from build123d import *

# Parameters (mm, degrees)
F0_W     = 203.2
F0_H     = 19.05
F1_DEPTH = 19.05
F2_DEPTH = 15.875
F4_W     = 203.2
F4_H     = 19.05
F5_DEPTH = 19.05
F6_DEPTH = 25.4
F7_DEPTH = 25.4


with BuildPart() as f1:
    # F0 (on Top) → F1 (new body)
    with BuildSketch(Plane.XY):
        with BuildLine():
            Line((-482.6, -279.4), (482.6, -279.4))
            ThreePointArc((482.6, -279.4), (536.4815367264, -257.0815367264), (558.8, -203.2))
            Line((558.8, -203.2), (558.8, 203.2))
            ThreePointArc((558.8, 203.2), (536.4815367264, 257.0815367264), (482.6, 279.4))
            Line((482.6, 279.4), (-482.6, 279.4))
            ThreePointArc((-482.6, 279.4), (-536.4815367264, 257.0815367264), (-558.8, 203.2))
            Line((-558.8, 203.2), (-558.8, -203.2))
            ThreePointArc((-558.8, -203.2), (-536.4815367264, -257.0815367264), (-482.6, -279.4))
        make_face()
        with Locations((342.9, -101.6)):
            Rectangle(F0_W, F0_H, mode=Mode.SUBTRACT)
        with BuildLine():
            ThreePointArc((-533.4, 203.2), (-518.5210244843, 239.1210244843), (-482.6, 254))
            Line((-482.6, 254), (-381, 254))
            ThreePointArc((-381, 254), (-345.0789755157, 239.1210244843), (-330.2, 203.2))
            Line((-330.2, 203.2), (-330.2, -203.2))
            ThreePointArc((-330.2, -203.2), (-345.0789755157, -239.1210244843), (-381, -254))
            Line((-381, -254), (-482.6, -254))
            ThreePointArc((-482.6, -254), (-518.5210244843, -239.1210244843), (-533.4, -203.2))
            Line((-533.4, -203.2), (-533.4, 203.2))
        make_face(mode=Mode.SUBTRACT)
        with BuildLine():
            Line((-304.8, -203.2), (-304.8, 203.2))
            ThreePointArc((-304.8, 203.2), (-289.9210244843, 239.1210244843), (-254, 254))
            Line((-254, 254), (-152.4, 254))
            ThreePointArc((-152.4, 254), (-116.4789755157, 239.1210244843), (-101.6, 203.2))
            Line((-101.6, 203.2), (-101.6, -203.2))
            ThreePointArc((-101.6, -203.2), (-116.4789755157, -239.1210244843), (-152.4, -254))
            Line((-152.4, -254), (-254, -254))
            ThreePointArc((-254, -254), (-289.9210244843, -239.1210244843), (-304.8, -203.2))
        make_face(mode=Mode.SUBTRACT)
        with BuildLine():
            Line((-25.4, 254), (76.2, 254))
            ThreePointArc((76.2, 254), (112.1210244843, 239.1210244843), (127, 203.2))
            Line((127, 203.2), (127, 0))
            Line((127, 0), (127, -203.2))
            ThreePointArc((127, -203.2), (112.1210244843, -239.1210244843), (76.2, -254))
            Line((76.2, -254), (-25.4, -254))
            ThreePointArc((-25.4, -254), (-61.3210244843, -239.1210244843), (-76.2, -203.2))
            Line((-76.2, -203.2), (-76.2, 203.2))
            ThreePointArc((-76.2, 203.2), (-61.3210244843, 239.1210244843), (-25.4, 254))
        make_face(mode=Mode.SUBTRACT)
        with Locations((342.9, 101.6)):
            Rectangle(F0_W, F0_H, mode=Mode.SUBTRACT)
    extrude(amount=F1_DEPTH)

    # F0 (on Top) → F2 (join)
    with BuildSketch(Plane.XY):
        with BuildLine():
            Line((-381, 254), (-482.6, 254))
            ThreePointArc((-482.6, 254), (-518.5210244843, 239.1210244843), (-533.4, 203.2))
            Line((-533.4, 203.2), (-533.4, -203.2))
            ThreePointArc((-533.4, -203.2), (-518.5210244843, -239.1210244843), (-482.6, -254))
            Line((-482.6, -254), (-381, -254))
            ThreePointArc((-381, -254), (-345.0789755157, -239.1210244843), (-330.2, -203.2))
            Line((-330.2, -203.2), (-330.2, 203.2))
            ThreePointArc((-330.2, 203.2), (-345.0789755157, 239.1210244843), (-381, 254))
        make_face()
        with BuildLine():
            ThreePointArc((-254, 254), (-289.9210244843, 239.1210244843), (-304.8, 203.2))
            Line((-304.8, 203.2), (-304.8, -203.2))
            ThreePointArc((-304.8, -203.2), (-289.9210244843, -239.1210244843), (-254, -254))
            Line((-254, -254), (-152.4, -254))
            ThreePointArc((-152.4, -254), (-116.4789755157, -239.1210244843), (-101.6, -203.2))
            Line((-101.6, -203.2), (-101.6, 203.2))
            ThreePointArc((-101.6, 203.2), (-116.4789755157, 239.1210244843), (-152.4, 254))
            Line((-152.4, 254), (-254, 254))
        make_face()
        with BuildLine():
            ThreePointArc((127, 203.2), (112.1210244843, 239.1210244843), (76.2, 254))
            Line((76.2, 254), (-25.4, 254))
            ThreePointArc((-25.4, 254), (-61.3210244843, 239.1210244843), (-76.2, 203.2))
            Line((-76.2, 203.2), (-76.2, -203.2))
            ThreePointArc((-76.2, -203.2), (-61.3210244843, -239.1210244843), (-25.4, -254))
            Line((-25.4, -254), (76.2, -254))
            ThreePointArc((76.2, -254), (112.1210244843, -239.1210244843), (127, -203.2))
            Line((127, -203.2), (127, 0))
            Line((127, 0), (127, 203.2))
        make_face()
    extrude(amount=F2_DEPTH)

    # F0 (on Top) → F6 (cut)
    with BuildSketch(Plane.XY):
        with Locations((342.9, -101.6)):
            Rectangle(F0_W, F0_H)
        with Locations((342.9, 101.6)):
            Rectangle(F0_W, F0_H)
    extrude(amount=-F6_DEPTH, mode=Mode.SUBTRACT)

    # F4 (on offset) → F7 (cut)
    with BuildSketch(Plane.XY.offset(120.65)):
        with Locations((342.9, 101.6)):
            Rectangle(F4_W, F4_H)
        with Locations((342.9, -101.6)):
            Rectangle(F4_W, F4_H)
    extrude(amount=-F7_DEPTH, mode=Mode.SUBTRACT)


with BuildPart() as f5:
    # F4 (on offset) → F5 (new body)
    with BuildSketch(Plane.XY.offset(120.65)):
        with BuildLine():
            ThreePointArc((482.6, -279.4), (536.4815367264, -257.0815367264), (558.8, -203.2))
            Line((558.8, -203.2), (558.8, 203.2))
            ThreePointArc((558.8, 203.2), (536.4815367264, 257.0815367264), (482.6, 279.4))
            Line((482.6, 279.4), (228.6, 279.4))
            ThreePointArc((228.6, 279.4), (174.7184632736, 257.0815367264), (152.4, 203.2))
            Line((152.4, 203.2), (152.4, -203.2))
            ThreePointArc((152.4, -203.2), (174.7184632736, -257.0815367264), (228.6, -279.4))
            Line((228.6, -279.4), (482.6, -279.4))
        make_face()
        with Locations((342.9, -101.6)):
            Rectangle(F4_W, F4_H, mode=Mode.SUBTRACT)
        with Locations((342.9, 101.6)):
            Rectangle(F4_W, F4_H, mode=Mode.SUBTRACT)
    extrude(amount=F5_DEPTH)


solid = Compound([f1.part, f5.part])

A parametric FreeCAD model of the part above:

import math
import FreeCAD as App
import Part
import Sketcher

V = App.Vector
Q = App.Units.Quantity


def add_polygon(sketch, points):
    """Adds a closed chain of lines whose ends are joined by coincident constraints."""
    first, n = sketch.GeometryCount, len(points)
    for a, b in zip(points, points[1:] + points[:1]):
        sketch.addGeometry(Part.LineSegment(App.Vector(*a, 0), App.Vector(*b, 0)), False)
    for i in range(n):
        sketch.addConstraint(Sketcher.Constraint("Coincident", first + i, 2, first + (i + 1) % n, 1))

doc = App.newDocument("Part")
params = doc.addObject("Spreadsheet::Sheet", "Params")
for row, (alias, value) in enumerate([
    ("sketch1_radius", "3 in"),
    ("sketch1_radius2", "2 in"),
    ("sketch1_width", "38 in"),
    ("sketch1_width2", "8 in"),
    ("sketch1_width3", "4 in"),
    ("pad1_length", "0.75 in"),
    ("sketch2_radius", "2 in"),
    ("sketch2_width", "4 in"),
    ("sketch2_height", "16 in"),
    ("pad2_length", "0.625 in"),
    ("sketch3_width", "8 in"),
    ("sketch3_height", "0.75 in"),
    ("pocket1_length", "1 in"),
    ("sketch4_width", "8 in"),
    ("sketch4_height", "0.75 in"),
    ("pocket2_length", "1 in"),
    ("sketch5_radius", "3 in"),
    ("sketch5_width", "10 in"),
    ("sketch5_width2", "8 in"),
    ("sketch5_height", "16 in"),
    ("sketch5_height2", "0.75 in"),
    ("pad3_length", "0.75 in"),
], start=1):
    params.set(f"A{row}", alias)
    params.set(f"B{row}", "=" + value)
    params.setAlias(f"B{row}", alias)

body = doc.addObject("PartDesign::Body", "Body")

sketch1 = body.newObject("Sketcher::SketchObject", "Sketch")
sketch1.AttachmentSupport = (doc.getObject("XY_Plane"), [""])
sketch1.MapMode = "FlatFace"
sketch1.addGeometry(Part.LineSegment(V(-482.6, -279.4, 0), V(482.6, -279.4, 0)), False)
sketch1.addGeometry(Part.ArcOfCircle(Part.Circle(V(482.6, -203.2, 0), V(0, 0, 1), 76.2), math.radians(-90), math.radians(0)), False)
sketch1.addGeometry(Part.LineSegment(V(558.8, -203.2, 0), V(558.8, 203.2, 0)), False)
sketch1.addGeometry(Part.ArcOfCircle(Part.Circle(V(482.6, 203.2, 0), V(0, 0, 1), 76.2), math.radians(0), math.radians(90)), False)
sketch1.addGeometry(Part.LineSegment(V(482.6, 279.4, 0), V(-482.6, 279.4, 0)), False)
sketch1.addGeometry(Part.ArcOfCircle(Part.Circle(V(-482.6, 203.2, 0), V(0, 0, 1), 76.2), math.radians(90), math.radians(180)), False)
sketch1.addGeometry(Part.LineSegment(V(-558.8, 203.2, 0), V(-558.8, -203.2, 0)), False)
sketch1.addGeometry(Part.ArcOfCircle(Part.Circle(V(-482.6, -203.2, 0), V(0, 0, 1), 76.2), math.radians(180), math.radians(270)), False)
add_polygon(sketch1, [(444.5, -111.125), (241.3, -111.125), (241.3, -92.075), (444.5, -92.075)])
sketch1.addGeometry(Part.LineSegment(V(-533.4, -203.2, 0), V(-533.4, 203.2, 0)), False)
sketch1.addGeometry(Part.ArcOfCircle(Part.Circle(V(-482.6, 203.2, 0), V(0, 0, 1), 50.8), math.radians(90), math.radians(180)), False)
sketch1.addGeometry(Part.LineSegment(V(-482.6, 254, 0), V(-381, 254, 0)), False)
sketch1.addGeometry(Part.ArcOfCircle(Part.Circle(V(-381, 203.2, 0), V(0, 0, 1), 50.8), math.radians(0), math.radians(90)), False)
sketch1.addGeometry(Part.LineSegment(V(-330.2, 203.2, 0), V(-330.2, -203.2, 0)), False)
sketch1.addGeometry(Part.ArcOfCircle(Part.Circle(V(-381, -203.2, 0), V(0, 0, 1), 50.8), math.radians(-90), math.radians(0)), False)
sketch1.addGeometry(Part.LineSegment(V(-381, -254, 0), V(-482.6, -254, 0)), False)
sketch1.addGeometry(Part.ArcOfCircle(Part.Circle(V(-482.6, -203.2, 0), V(0, 0, 1), 50.8), math.radians(180), math.radians(270)), False)
sketch1.addGeometry(Part.ArcOfCircle(Part.Circle(V(-254, -203.2, 0), V(0, 0, 1), 50.8), math.radians(180), math.radians(270)), False)
sketch1.addGeometry(Part.LineSegment(V(-304.8, -203.2, 0), V(-304.8, 203.2, 0)), False)
sketch1.addGeometry(Part.ArcOfCircle(Part.Circle(V(-254, 203.2, 0), V(0, 0, 1), 50.8), math.radians(90), math.radians(180)), False)
sketch1.addGeometry(Part.LineSegment(V(-254, 254, 0), V(-152.4, 254, 0)), False)
sketch1.addGeometry(Part.ArcOfCircle(Part.Circle(V(-152.4, 203.2, 0), V(0, 0, 1), 50.8), math.radians(0), math.radians(90)), False)
sketch1.addGeometry(Part.LineSegment(V(-101.6, 203.2, 0), V(-101.6, -203.2, 0)), False)
sketch1.addGeometry(Part.ArcOfCircle(Part.Circle(V(-152.4, -203.2, 0), V(0, 0, 1), 50.8), math.radians(-90), math.radians(0)), False)
sketch1.addGeometry(Part.LineSegment(V(-152.4, -254, 0), V(-254, -254, 0)), False)
sketch1.addGeometry(Part.ArcOfCircle(Part.Circle(V(-25.4, 203.2, 0), V(0, 0, 1), 50.8), math.radians(90), math.radians(180)), False)
sketch1.addGeometry(Part.LineSegment(V(-25.4, 254, 0), V(76.2, 254, 0)), False)
sketch1.addGeometry(Part.ArcOfCircle(Part.Circle(V(76.2, 203.2, 0), V(0, 0, 1), 50.8), math.radians(0), math.radians(90)), False)
sketch1.addGeometry(Part.LineSegment(V(127, 203.2, 0), V(127, -203.2, 0)), False)
sketch1.addGeometry(Part.ArcOfCircle(Part.Circle(V(76.2, -203.2, 0), V(0, 0, 1), 50.8), math.radians(-90), math.radians(0)), False)
sketch1.addGeometry(Part.LineSegment(V(76.2, -254, 0), V(-25.4, -254, 0)), False)
sketch1.addGeometry(Part.ArcOfCircle(Part.Circle(V(-25.4, -203.2, 0), V(0, 0, 1), 50.8), math.radians(180), math.radians(270)), False)
sketch1.addGeometry(Part.LineSegment(V(-76.2, -203.2, 0), V(-76.2, 203.2, 0)), False)
add_polygon(sketch1, [(444.5, 92.075), (241.3, 92.075), (241.3, 111.125), (444.5, 111.125)])
sketch1.addConstraint([
    Sketcher.Constraint("Tangent", 0, 2, 1, 1),
    Sketcher.Constraint("Tangent", 1, 2, 2, 1),
    Sketcher.Constraint("Tangent", 2, 2, 3, 1),
    Sketcher.Constraint("Tangent", 3, 2, 4, 1),
    Sketcher.Constraint("Tangent", 4, 2, 5, 1),
    Sketcher.Constraint("Tangent", 5, 2, 6, 1),
    Sketcher.Constraint("Tangent", 6, 2, 7, 1),
    Sketcher.Constraint("Tangent", 7, 2, 0, 1),
    Sketcher.Constraint("Tangent", 12, 2, 13, 2),
    Sketcher.Constraint("Tangent", 13, 1, 14, 1),
    Sketcher.Constraint("Tangent", 14, 2, 15, 2),
    Sketcher.Constraint("Tangent", 15, 1, 16, 1),
    Sketcher.Constraint("Tangent", 16, 2, 17, 2),
    Sketcher.Constraint("Tangent", 17, 1, 18, 1),
    Sketcher.Constraint("Tangent", 18, 2, 19, 2),
    Sketcher.Constraint("Tangent", 19, 1, 12, 1),
    Sketcher.Constraint("Tangent", 20, 1, 21, 1),
    Sketcher.Constraint("Tangent", 21, 2, 22, 2),
    Sketcher.Constraint("Tangent", 22, 1, 23, 1),
    Sketcher.Constraint("Tangent", 23, 2, 24, 2),
    Sketcher.Constraint("Tangent", 24, 1, 25, 1),
    Sketcher.Constraint("Tangent", 25, 2, 26, 2),
    Sketcher.Constraint("Tangent", 26, 1, 27, 1),
    Sketcher.Constraint("Tangent", 27, 2, 20, 2),
    Sketcher.Constraint("Tangent", 28, 1, 29, 1),
    Sketcher.Constraint("Tangent", 29, 2, 30, 2),
    Sketcher.Constraint("Tangent", 30, 1, 31, 1),
    Sketcher.Constraint("Tangent", 31, 2, 32, 2),
    Sketcher.Constraint("Tangent", 32, 1, 33, 1),
    Sketcher.Constraint("Tangent", 33, 2, 34, 2),
    Sketcher.Constraint("Tangent", 34, 1, 35, 1),
    Sketcher.Constraint("Tangent", 35, 2, 28, 2),
    Sketcher.Constraint("Horizontal", 0),
    Sketcher.Constraint("Vertical", 2),
    Sketcher.Constraint("Horizontal", 4),
    Sketcher.Constraint("Vertical", 6),
    Sketcher.Constraint("Horizontal", 8),
    Sketcher.Constraint("Vertical", 9),
    Sketcher.Constraint("Horizontal", 10),
    Sketcher.Constraint("Vertical", 11),
    Sketcher.Constraint("Vertical", 12),
    Sketcher.Constraint("Horizontal", 14),
    Sketcher.Constraint("Vertical", 16),
    Sketcher.Constraint("Horizontal", 18),
    Sketcher.Constraint("Vertical", 21),
    Sketcher.Constraint("Horizontal", 23),
    Sketcher.Constraint("Vertical", 25),
    Sketcher.Constraint("Horizontal", 27),
    Sketcher.Constraint("Horizontal", 29),
    Sketcher.Constraint("Vertical", 31),
    Sketcher.Constraint("Horizontal", 33),
    Sketcher.Constraint("Vertical", 35),
    Sketcher.Constraint("Horizontal", 36),
    Sketcher.Constraint("Vertical", 37),
    Sketcher.Constraint("Horizontal", 38),
    Sketcher.Constraint("Vertical", 39),
    Sketcher.Constraint("Coincident", 13, 3, 5, 3),
    Sketcher.Constraint("Coincident", 19, 3, 7, 3),
    Sketcher.Constraint("Equal", 1, 3),
    Sketcher.Constraint("Equal", 3, 5),
    Sketcher.Constraint("Equal", 5, 7),
    Sketcher.Constraint("Equal", 13, 15),
    Sketcher.Constraint("Equal", 15, 17),
    Sketcher.Constraint("Equal", 19, 20),
    Sketcher.Constraint("Equal", 20, 22),
    Sketcher.Constraint("Equal", 22, 24),
    Sketcher.Constraint("Equal", 24, 26),
    Sketcher.Constraint("Equal", 26, 28),
    Sketcher.Constraint("Equal", 28, 30),
    Sketcher.Constraint("Equal", 30, 32),
    Sketcher.Constraint("Equal", 32, 34),
    Sketcher.Constraint("Symmetric", 1, 3, 5, 3, -1, 1),
    Sketcher.Constraint("Symmetric", 9, 2, 36, 2, -1),
    Sketcher.Constraint("Symmetric", 11, 2, 38, 2, -1),
    Sketcher.Constraint("Horizontal", 19, 3, 20, 3),
    Sketcher.Constraint("Horizontal", 15, 3, 22, 3),
    Sketcher.Constraint("Horizontal", 24, 3, 28, 3),
    Sketcher.Constraint("Horizontal", 26, 3, 32, 3),
    Sketcher.Constraint("Equal", 18, 23),
    Sketcher.Constraint("Equal", 27, 29),
    Sketcher.Constraint("Radius", 1, Q("3 in")),
    Sketcher.Constraint("Radius", 13, Q("2 in")),
    Sketcher.Constraint("DistanceX", 0, 1, 0, 2, Q("38 in")),
    Sketcher.Constraint("DistanceX", 8, 2, 8, 1, Q("8 in")),
    Sketcher.Constraint("DistanceX", 14, 1, 14, 2, Q("4 in")),
    Sketcher.Constraint("DistanceY", 2, 1, 2, 2, Q("16 in")),
    Sketcher.Constraint("DistanceX", 20, 3, -1, 1, Q("10 in")),
    Sketcher.Constraint("DistanceX", 28, 3, -1, 1, Q("1 in")),
    Sketcher.Constraint("DistanceY", 8, 2, 36, 2, Q("8 in")),
    Sketcher.Constraint("DistanceY", 9, 1, 9, 2, Q("0.75 in")),
    Sketcher.Constraint("DistanceX", -1, 1, 8, 2, Q("9.5 in")),
])
sketch1.setExpression("Constraints[88]", "Params.sketch1_radius")
sketch1.setExpression("Constraints[89]", "Params.sketch1_radius2")
sketch1.setExpression("Constraints[90]", "Params.sketch1_width")
sketch1.setExpression("Constraints[91]", "Params.sketch1_width2")
sketch1.setExpression("Constraints[92]", "Params.sketch1_width3")
pad1 = body.newObject("PartDesign::Pad", "Pad")
pad1.Profile = sketch1
pad1.setExpression("Length", "Params.pad1_length")

sketch2 = body.newObject("Sketcher::SketchObject", "Sketch001")
sketch2.AttachmentSupport = (doc.getObject("XY_Plane"), [""])
sketch2.MapMode = "FlatFace"
sketch2.addGeometry([
    Part.LineSegment(V(-381, 254, 0), V(-482.6, 254, 0)),
    Part.ArcOfCircle(Part.Circle(V(-482.6, 203.2, 0), V(0, 0, 1), 50.8), math.radians(90), math.radians(180)),
    Part.LineSegment(V(-533.4, 203.2, 0), V(-533.4, -203.2, 0)),
    Part.ArcOfCircle(Part.Circle(V(-482.6, -203.2, 0), V(0, 0, 1), 50.8), math.radians(180), math.radians(270)),
    Part.LineSegment(V(-482.6, -254, 0), V(-381, -254, 0)),
    Part.ArcOfCircle(Part.Circle(V(-381, -203.2, 0), V(0, 0, 1), 50.8), math.radians(-90), math.radians(0)),
    Part.LineSegment(V(-330.2, -203.2, 0), V(-330.2, 203.2, 0)),
    Part.ArcOfCircle(Part.Circle(V(-381, 203.2, 0), V(0, 0, 1), 50.8), math.radians(0), math.radians(90)),
    Part.ArcOfCircle(Part.Circle(V(-254, 203.2, 0), V(0, 0, 1), 50.8), math.radians(90), math.radians(180)),
    Part.LineSegment(V(-304.8, 203.2, 0), V(-304.8, -203.2, 0)),
    Part.ArcOfCircle(Part.Circle(V(-254, -203.2, 0), V(0, 0, 1), 50.8), math.radians(180), math.radians(270)),
    Part.LineSegment(V(-254, -254, 0), V(-152.4, -254, 0)),
    Part.ArcOfCircle(Part.Circle(V(-152.4, -203.2, 0), V(0, 0, 1), 50.8), math.radians(-90), math.radians(0)),
    Part.LineSegment(V(-101.6, -203.2, 0), V(-101.6, 203.2, 0)),
    Part.ArcOfCircle(Part.Circle(V(-152.4, 203.2, 0), V(0, 0, 1), 50.8), math.radians(0), math.radians(90)),
    Part.LineSegment(V(-152.4, 254, 0), V(-254, 254, 0)),
    Part.ArcOfCircle(Part.Circle(V(76.2, 203.2, 0), V(0, 0, 1), 50.8), math.radians(0), math.radians(90)),
    Part.LineSegment(V(76.2, 254, 0), V(-25.4, 254, 0)),
    Part.ArcOfCircle(Part.Circle(V(-25.4, 203.2, 0), V(0, 0, 1), 50.8), math.radians(90), math.radians(180)),
    Part.LineSegment(V(-76.2, 203.2, 0), V(-76.2, -203.2, 0)),
    Part.ArcOfCircle(Part.Circle(V(-25.4, -203.2, 0), V(0, 0, 1), 50.8), math.radians(180), math.radians(270)),
    Part.LineSegment(V(-25.4, -254, 0), V(76.2, -254, 0)),
    Part.ArcOfCircle(Part.Circle(V(76.2, -203.2, 0), V(0, 0, 1), 50.8), math.radians(-90), math.radians(0)),
    Part.LineSegment(V(127, -203.2, 0), V(127, 203.2, 0)),
], False)
sketch2.addConstraint([
    Sketcher.Constraint("Tangent", 0, 2, 1, 1),
    Sketcher.Constraint("Tangent", 1, 2, 2, 1),
    Sketcher.Constraint("Tangent", 2, 2, 3, 1),
    Sketcher.Constraint("Tangent", 3, 2, 4, 1),
    Sketcher.Constraint("Tangent", 4, 2, 5, 1),
    Sketcher.Constraint("Tangent", 5, 2, 6, 1),
    Sketcher.Constraint("Tangent", 6, 2, 7, 1),
    Sketcher.Constraint("Tangent", 7, 2, 0, 1),
    Sketcher.Constraint("Tangent", 8, 2, 9, 1),
    Sketcher.Constraint("Tangent", 9, 2, 10, 1),
    Sketcher.Constraint("Tangent", 10, 2, 11, 1),
    Sketcher.Constraint("Tangent", 11, 2, 12, 1),
    Sketcher.Constraint("Tangent", 12, 2, 13, 1),
    Sketcher.Constraint("Tangent", 13, 2, 14, 1),
    Sketcher.Constraint("Tangent", 14, 2, 15, 1),
    Sketcher.Constraint("Tangent", 15, 2, 8, 1),
    Sketcher.Constraint("Tangent", 16, 2, 17, 1),
    Sketcher.Constraint("Tangent", 17, 2, 18, 1),
    Sketcher.Constraint("Tangent", 18, 2, 19, 1),
    Sketcher.Constraint("Tangent", 19, 2, 20, 1),
    Sketcher.Constraint("Tangent", 20, 2, 21, 1),
    Sketcher.Constraint("Tangent", 21, 2, 22, 1),
    Sketcher.Constraint("Tangent", 22, 2, 23, 1),
    Sketcher.Constraint("Tangent", 23, 2, 16, 1),
    Sketcher.Constraint("Horizontal", 0),
    Sketcher.Constraint("Vertical", 2),
    Sketcher.Constraint("Horizontal", 4),
    Sketcher.Constraint("Vertical", 6),
    Sketcher.Constraint("Vertical", 9),
    Sketcher.Constraint("Horizontal", 11),
    Sketcher.Constraint("Vertical", 13),
    Sketcher.Constraint("Horizontal", 15),
    Sketcher.Constraint("Horizontal", 17),
    Sketcher.Constraint("Vertical", 19),
    Sketcher.Constraint("Horizontal", 21),
    Sketcher.Constraint("Vertical", 23),
    Sketcher.Constraint("Equal", 1, 3),
    Sketcher.Constraint("Equal", 3, 5),
    Sketcher.Constraint("Equal", 5, 7),
    Sketcher.Constraint("Equal", 7, 8),
    Sketcher.Constraint("Equal", 8, 10),
    Sketcher.Constraint("Equal", 10, 12),
    Sketcher.Constraint("Equal", 12, 14),
    Sketcher.Constraint("Equal", 14, 16),
    Sketcher.Constraint("Equal", 16, 18),
    Sketcher.Constraint("Equal", 18, 20),
    Sketcher.Constraint("Equal", 20, 22),
    Sketcher.Constraint("Horizontal", 7, 3, 8, 3),
    Sketcher.Constraint("Horizontal", 5, 3, 10, 3),
    Sketcher.Constraint("Horizontal", 14, 3, 16, 3),
    Sketcher.Constraint("Horizontal", 12, 3, 20, 3),
    Sketcher.Constraint("Equal", 4, 11),
    Sketcher.Constraint("Equal", 15, 17),
    Sketcher.Constraint("Radius", 1, Q("2 in")),
    Sketcher.Constraint("DistanceX", 0, 2, 0, 1, Q("4 in")),
    Sketcher.Constraint("DistanceY", 2, 2, 2, 1, Q("16 in")),
    Sketcher.Constraint("DistanceX", 1, 3, -1, 1, Q("19 in")),
    Sketcher.Constraint("DistanceY", -1, 1, 1, 3, Q("8 in")),
    Sketcher.Constraint("DistanceX", 8, 3, -1, 1, Q("10 in")),
    Sketcher.Constraint("DistanceX", -1, 1, 16, 3, Q("3 in")),
])
sketch2.setExpression("Constraints[53]", "Params.sketch2_radius")
sketch2.setExpression("Constraints[54]", "Params.sketch2_width")
sketch2.setExpression("Constraints[55]", "Params.sketch2_height")
pad2 = body.newObject("PartDesign::Pad", "Pad001")
pad2.Profile = sketch2
pad2.setExpression("Length", "Params.pad2_length")

sketch3 = body.newObject("Sketcher::SketchObject", "Sketch002")
sketch3.AttachmentSupport = (doc.getObject("XY_Plane"), [""])
sketch3.MapMode = "FlatFace"
add_polygon(sketch3, [(241.3, -92.075), (241.3, -111.125), (444.5, -111.125), (444.5, -92.075)])
add_polygon(sketch3, [(241.3, 111.125), (241.3, 92.075), (444.5, 92.075), (444.5, 111.125)])
sketch3.addConstraint([
    Sketcher.Constraint("Vertical", 0),
    Sketcher.Constraint("Horizontal", 1),
    Sketcher.Constraint("Vertical", 2),
    Sketcher.Constraint("Horizontal", 3),
    Sketcher.Constraint("Vertical", 4),
    Sketcher.Constraint("Horizontal", 5),
    Sketcher.Constraint("Vertical", 6),
    Sketcher.Constraint("Horizontal", 7),
    Sketcher.Constraint("Symmetric", 3, 2, 4, 2, -1),
    Sketcher.Constraint("Symmetric", 1, 2, 6, 2, -1),
    Sketcher.Constraint("DistanceX", 1, 1, 1, 2, Q("8 in")),
    Sketcher.Constraint("DistanceY", 0, 2, 4, 2, Q("8 in")),
    Sketcher.Constraint("DistanceY", 0, 2, 0, 1, Q("0.75 in")),
    Sketcher.Constraint("DistanceX", -1, 1, 0, 2, Q("9.5 in")),
])
sketch3.setExpression("Constraints[18]", "Params.sketch3_width")
sketch3.setExpression("Constraints[20]", "Params.sketch3_height")
pocket1 = body.newObject("PartDesign::Pocket", "Pocket")
pocket1.Profile = sketch3
pocket1.setExpression("Length", "Params.pocket1_length")

sketch4 = body.newObject("Sketcher::SketchObject", "Sketch003")
sketch4.AttachmentSupport = (doc.getObject("XY_Plane"), [""])
sketch4.MapMode = "FlatFace"
sketch4.AttachmentOffset = App.Placement(V(0, 0, 4.75 * 25.4), App.Rotation())
add_polygon(sketch4, [(241.3, 111.125), (241.3, 92.075), (444.5, 92.075), (444.5, 111.125)])
add_polygon(sketch4, [(241.3, -92.075), (241.3, -111.125), (444.5, -111.125), (444.5, -92.075)])
sketch4.addConstraint([
    Sketcher.Constraint("Vertical", 0),
    Sketcher.Constraint("Horizontal", 1),
    Sketcher.Constraint("Vertical", 2),
    Sketcher.Constraint("Horizontal", 3),
    Sketcher.Constraint("Vertical", 4),
    Sketcher.Constraint("Horizontal", 5),
    Sketcher.Constraint("Vertical", 6),
    Sketcher.Constraint("Horizontal", 7),
    Sketcher.Constraint("Symmetric", 3, 2, 4, 2, -1),
    Sketcher.Constraint("Symmetric", 1, 2, 6, 2, -1),
    Sketcher.Constraint("DistanceX", 1, 1, 1, 2, Q("8 in")),
    Sketcher.Constraint("DistanceY", 4, 2, 0, 2, Q("8 in")),
    Sketcher.Constraint("DistanceY", 0, 2, 0, 1, Q("0.75 in")),
    Sketcher.Constraint("DistanceX", -1, 1, 0, 2, Q("9.5 in")),
])
sketch4.setExpression("Constraints[18]", "Params.sketch4_width")
sketch4.setExpression("Constraints[20]", "Params.sketch4_height")
pocket2 = body.newObject("PartDesign::Pocket", "Pocket001")
pocket2.Profile = sketch4
pocket2.setExpression("Length", "Params.pocket2_length")
body2 = doc.addObject("PartDesign::Body", "Body001")

sketch5 = body2.newObject("Sketcher::SketchObject", "Sketch004")
sketch5.AttachmentSupport = (doc.getObject("XY_Plane001"), [""])
sketch5.MapMode = "FlatFace"
sketch5.AttachmentOffset = App.Placement(V(0, 0, 4.75 * 25.4), App.Rotation())
sketch5.addGeometry(Part.ArcOfCircle(Part.Circle(V(482.6, -203.2, 0), V(0, 0, 1), 76.2), math.radians(-90), math.radians(0)), False)
sketch5.addGeometry(Part.LineSegment(V(558.8, -203.2, 0), V(558.8, 203.2, 0)), False)
sketch5.addGeometry(Part.ArcOfCircle(Part.Circle(V(482.6, 203.2, 0), V(0, 0, 1), 76.2), math.radians(0), math.radians(90)), False)
sketch5.addGeometry(Part.LineSegment(V(482.6, 279.4, 0), V(228.6, 279.4, 0)), False)
sketch5.addGeometry(Part.ArcOfCircle(Part.Circle(V(228.6, 203.2, 0), V(0, 0, 1), 76.2), math.radians(90), math.radians(180)), False)
sketch5.addGeometry(Part.LineSegment(V(152.4, 203.2, 0), V(152.4, -203.2, 0)), False)
sketch5.addGeometry(Part.ArcOfCircle(Part.Circle(V(228.6, -203.2, 0), V(0, 0, 1), 76.2), math.radians(180), math.radians(270)), False)
sketch5.addGeometry(Part.LineSegment(V(228.6, -279.4, 0), V(482.6, -279.4, 0)), False)
add_polygon(sketch5, [(444.5, -111.125), (241.3, -111.125), (241.3, -92.075), (444.5, -92.075)])
add_polygon(sketch5, [(444.5, 92.075), (241.3, 92.075), (241.3, 111.125), (444.5, 111.125)])
sketch5.addConstraint([
    Sketcher.Constraint("Tangent", 0, 2, 1, 1),
    Sketcher.Constraint("Tangent", 1, 2, 2, 1),
    Sketcher.Constraint("Tangent", 2, 2, 3, 1),
    Sketcher.Constraint("Tangent", 3, 2, 4, 1),
    Sketcher.Constraint("Tangent", 4, 2, 5, 1),
    Sketcher.Constraint("Tangent", 5, 2, 6, 1),
    Sketcher.Constraint("Tangent", 6, 2, 7, 1),
    Sketcher.Constraint("Tangent", 7, 2, 0, 1),
    Sketcher.Constraint("Vertical", 1),
    Sketcher.Constraint("Horizontal", 3),
    Sketcher.Constraint("Vertical", 5),
    Sketcher.Constraint("Horizontal", 7),
    Sketcher.Constraint("Horizontal", 8),
    Sketcher.Constraint("Vertical", 9),
    Sketcher.Constraint("Horizontal", 10),
    Sketcher.Constraint("Vertical", 11),
    Sketcher.Constraint("Horizontal", 12),
    Sketcher.Constraint("Vertical", 13),
    Sketcher.Constraint("Horizontal", 14),
    Sketcher.Constraint("Vertical", 15),
    Sketcher.Constraint("Equal", 0, 2),
    Sketcher.Constraint("Equal", 2, 4),
    Sketcher.Constraint("Equal", 4, 6),
    Sketcher.Constraint("Symmetric", 9, 2, 12, 2, -1),
    Sketcher.Constraint("Symmetric", 11, 2, 14, 2, -1),
    Sketcher.Constraint("Radius", 0, Q("3 in")),
    Sketcher.Constraint("DistanceX", 3, 2, 3, 1, Q("10 in")),
    Sketcher.Constraint("DistanceX", 8, 2, 8, 1, Q("8 in")),
    Sketcher.Constraint("DistanceY", 1, 1, 1, 2, Q("16 in")),
    Sketcher.Constraint("DistanceX", -1, 1, 0, 3, Q("19 in")),
    Sketcher.Constraint("DistanceY", 0, 3, -1, 1, Q("8 in")),
    Sketcher.Constraint("DistanceY", 8, 2, 12, 2, Q("8 in")),
    Sketcher.Constraint("DistanceY", 9, 1, 9, 2, Q("0.75 in")),
    Sketcher.Constraint("DistanceX", -1, 1, 8, 2, Q("9.5 in")),
])
sketch5.setExpression("Constraints[33]", "Params.sketch5_radius")
sketch5.setExpression("Constraints[34]", "Params.sketch5_width")
sketch5.setExpression("Constraints[35]", "Params.sketch5_width2")
sketch5.setExpression("Constraints[36]", "Params.sketch5_height")
sketch5.setExpression("Constraints[40]", "Params.sketch5_height2")
pad3 = body2.newObject("PartDesign::Pad", "Pad002")
pad3.Profile = sketch5
pad3.setExpression("Length", "Params.pad3_length")

doc.recompute()
